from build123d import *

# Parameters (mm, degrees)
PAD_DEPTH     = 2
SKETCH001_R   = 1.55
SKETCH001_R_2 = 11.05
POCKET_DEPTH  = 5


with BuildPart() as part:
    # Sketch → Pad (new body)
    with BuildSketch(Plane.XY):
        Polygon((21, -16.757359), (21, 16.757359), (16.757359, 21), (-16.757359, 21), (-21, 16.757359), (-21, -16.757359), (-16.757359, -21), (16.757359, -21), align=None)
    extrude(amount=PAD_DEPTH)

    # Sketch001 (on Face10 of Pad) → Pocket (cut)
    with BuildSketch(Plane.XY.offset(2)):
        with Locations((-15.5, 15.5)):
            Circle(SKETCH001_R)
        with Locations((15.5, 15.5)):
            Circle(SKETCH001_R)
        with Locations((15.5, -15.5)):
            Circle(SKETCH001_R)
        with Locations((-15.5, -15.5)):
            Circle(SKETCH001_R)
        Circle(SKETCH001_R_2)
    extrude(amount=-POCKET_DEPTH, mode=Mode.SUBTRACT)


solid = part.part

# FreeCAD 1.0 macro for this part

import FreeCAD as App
import Part
import Sketcher

V = App.Vector

doc = App.newDocument("Part")
body = doc.addObject("PartDesign::Body", "Body")

sketch1 = body.newObject("Sketcher::SketchObject", "Sketch")
sketch1.AttachmentSupport = (doc.getObject("XY_Plane"), [""])
sketch1.MapMode = "FlatFace"
sketch1.addGeometry(Part.LineSegment(V(21, -17, 0), V(21, 17, 0)), False)
sketch1.addGeometry(Part.LineSegment(V(21, 17, 0), V(17, 21, 0)), False)
sketch1.addGeometry(Part.LineSegment(V(17, 21, 0), V(-17, 21, 0)), False)
sketch1.addGeometry(Part.LineSegment(V(-17, 21, 0), V(-21, 17, 0)), False)
sketch1.addGeometry(Part.LineSegment(V(-21, 17, 0), V(-21, -17, 0)), False)
sketch1.addGeometry(Part.LineSegment(V(-21, -17, 0), V(-17, -21, 0)), False)
sketch1.addGeometry(Part.LineSegment(V(-17, -21, 0), V(17, -21, 0)), False)
sketch1.addGeometry(Part.LineSegment(V(17, -21, 0), V(21, -17, 0)), False)
sketch1.addConstraint(Sketcher.Constraint("Coincident", 0, 2, 1, 1))
sketch1.addConstraint(Sketcher.Constraint("Coincident", 1, 2, 2, 1))
sketch1.addConstraint(Sketcher.Constraint("Coincident", 2, 2, 3, 1))
sketch1.addConstraint(Sketcher.Constraint("Coincident", 3, 2, 4, 1))
sketch1.addConstraint(Sketcher.Constraint("Coincident", 4, 2, 5, 1))
sketch1.addConstraint(Sketcher.Constraint("Coincident", 5, 2, 6, 1))
sketch1.addConstraint(Sketcher.Constraint("Coincident", 6, 2, 7, 1))
sketch1.addConstraint(Sketcher.Constraint("Coincident", 7, 2, 0, 1))
sketch1.addConstraint(Sketcher.Constraint("Vertical", 0))
sketch1.addConstraint(Sketcher.Constraint("Horizontal", 2))
sketch1.addConstraint(Sketcher.Constraint("Vertical", 4))
sketch1.addConstraint(Sketcher.Constraint("Horizontal", 6))
sketch1.addConstraint(Sketcher.Constraint("Symmetric", 0, 2, 4, 2, -1, 1))
sketch1.addConstraint(Sketcher.Constraint("Symmetric", 1, 2, 5, 2, -1, 1))
sketch1.addConstraint(Sketcher.Constraint("Perpendicular", 1, 3))
sketch1.addConstraint(Sketcher.Constraint("Perpendicular", 5, 7))
sketch1.addConstraint(Sketcher.Constraint("Horizontal", 0, 2, 3, 2))
sketch1.addConstraint(Sketcher.Constraint("Horizontal", 4, 2, 7, 2))
sketch1.addConstraint(Sketcher.Constraint("Vertical", 2, 2, 5, 2))
sketch1.addConstraint(Sketcher.Constraint("Equal", 6, 0))
sketch1.addConstraint(Sketcher.Constraint("Distance", 1, 6.0))
sketch1.addConstraint(Sketcher.Constraint("DistanceX", -1, 1, 0, 2, 21.0))
pad1 = body.newObject("PartDesign::Pad", "Pad")
pad1.Profile = sketch1
pad1.Length = 2

sketch2 = body.newObject("Sketcher::SketchObject", "Sketch001")
sketch2.AttachmentSupport = (doc.getObject("XY_Plane"), [""])
sketch2.MapMode = "FlatFace"
sketch2.AttachmentOffset = App.Placement(V(0, 0, 2), App.Rotation())
sketch2.addGeometry(Part.Circle(V(-15.5, 15.5, 0), V(0, 0, 1), 1.6), False)
sketch2.addGeometry(Part.Circle(V(15.5, 15.5, 0), V(0, 0, 1), 1.6), False)
sketch2.addGeometry(Part.Circle(V(15.5, -15.5, 0), V(0, 0, 1), 1.6), False)
sketch2.addGeometry(Part.Circle(V(-15.5, -15.5, 0), V(0, 0, 1), 1.6), False)
sketch2.addGeometry(Part.Circle(V(0, 0, 0), V(0, 0, 1), 11.1), False)
sketch2.addConstraint(Sketcher.Constraint("Coincident", 4, 3, -1, 1))
sketch2.addConstraint(Sketcher.Constraint("Equal", 0, 1))
sketch2.addConstraint(Sketcher.Constraint("Equal", 1, 2))
sketch2.addConstraint(Sketcher.Constraint("Equal", 2, 3))
sketch2.addConstraint(Sketcher.Constraint("Symmetric", 0, 3, 2, 3, -1, 1))
sketch2.addConstraint(Sketcher.Constraint("Symmetric", 1, 3, 3, 3, -1, 1))
sketch2.addConstraint(Sketcher.Constraint("Symmetric", 0, 3, 1, 3, -2))
sketch2.addConstraint(Sketcher.Constraint("Diameter", 0, 3.1))
sketch2.addConstraint(Sketcher.Constraint("Diameter", 4, 22.1))
sketch2.addConstraint(Sketcher.Constraint("DistanceX", 0, 3, 1, 3, 31.0))
sketch2.addConstraint(Sketcher.Constraint("DistanceY", 2, 3, 1, 3, 31.0))
pocket1 = body.newObject("PartDesign::Pocket", "Pocket")
pocket1.Profile = sketch2
pocket1.Length = 5

doc.recompute()
